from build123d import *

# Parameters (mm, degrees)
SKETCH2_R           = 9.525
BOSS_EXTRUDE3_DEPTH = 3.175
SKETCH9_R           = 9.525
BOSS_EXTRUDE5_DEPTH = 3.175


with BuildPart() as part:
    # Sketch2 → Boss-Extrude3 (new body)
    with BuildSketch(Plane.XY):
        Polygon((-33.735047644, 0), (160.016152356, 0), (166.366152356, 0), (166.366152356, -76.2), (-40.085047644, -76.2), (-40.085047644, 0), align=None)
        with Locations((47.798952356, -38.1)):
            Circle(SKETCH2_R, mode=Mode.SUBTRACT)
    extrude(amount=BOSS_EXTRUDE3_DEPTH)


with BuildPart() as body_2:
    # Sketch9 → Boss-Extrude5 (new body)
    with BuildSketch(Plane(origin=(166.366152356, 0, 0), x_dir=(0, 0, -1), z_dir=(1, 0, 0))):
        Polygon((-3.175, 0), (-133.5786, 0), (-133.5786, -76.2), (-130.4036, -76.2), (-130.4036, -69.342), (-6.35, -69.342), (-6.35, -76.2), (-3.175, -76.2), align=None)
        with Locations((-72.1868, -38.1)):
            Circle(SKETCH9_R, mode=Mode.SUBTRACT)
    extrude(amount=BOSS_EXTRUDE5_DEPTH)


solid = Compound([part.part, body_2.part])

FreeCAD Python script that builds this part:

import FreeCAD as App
import Part
import Sketcher
from FreeCAD import Vector
Q = App.Units.Quantity

doc = App.newDocument("Part")
params = doc.addObject("Spreadsheet::Sheet", "Params")
for row, (alias, value) in enumerate([
    ("sketch1_diameter", "0.75 in"),
    ("sketch1_height", "3 in"),
    ("sketch1_width", "8.128 in"),
    ("pad1_length", "0.125 in"),
    ("sketch2_diameter", "0.75 in"),
    ("sketch2_width", "3 in"),
    ("sketch2_width2", "0.27 in"),
    ("sketch2_height", "5.134 in"),
    ("sketch2_height2", "0.125 in"),
    ("pad2_length", "0.125 in"),
], start=1):
    params.set(f"A{row}", alias)
    params.set(f"B{row}", "=" + value)
    params.setAlias(f"B{row}", alias)

body = doc.addObject("PartDesign::Body", "Body")

# Sketch on XY plane
sketch1 = body.newObject("Sketcher::SketchObject", "Sketch")
sketch1.AttachmentSupport = (doc.getObject("XY_Plane"), [""])
sketch1.MapMode = "FlatFace"
sketch1.addGeometry([
    Part.LineSegment(Vector(166, 0, 0), Vector(-40, 0, 0)),  # 0
    Part.LineSegment(Vector(-40, 0, 0), Vector(-40, -76, 0)),  # 1
    Part.LineSegment(Vector(-40, -76, 0), Vector(166, -76, 0)),  # 2
    Part.LineSegment(Vector(166, -76, 0), Vector(166, 0, 0)),  # 3
    Part.Circle(Vector(48, -38, 0), Vector(0, 0, 1), 10),  # 4
], False)
sketch1.addConstraint([
    Sketcher.Constraint("Coincident", 0, 2, 1, 1),
    Sketcher.Constraint("Coincident", 1, 2, 2, 1),
    Sketcher.Constraint("Coincident", 2, 2, 3, 1),
    Sketcher.Constraint("Coincident", 3, 2, 0, 1),
    Sketcher.Constraint("Horizontal", 0),
    Sketcher.Constraint("Vertical", 1),
    Sketcher.Constraint("Horizontal", 2),
    Sketcher.Constraint("Vertical", 3),
    Sketcher.Constraint("PointOnObject", 0, 2, -1),
    Sketcher.Constraint("Diameter", 4, Q("0.75 in")),
    Sketcher.Constraint("DistanceY", 1, 2, 1, 1, Q("3 in")),
    Sketcher.Constraint("DistanceY", 4, 3, -1, 1, Q("1.5 in")),
    Sketcher.Constraint("DistanceX", 0, 2, 0, 1, Q("8.128 in")),
    Sketcher.Constraint("DistanceX", 0, 2, 4, 3, Q("3.46 in")),
    Sketcher.Constraint("DistanceX", -1, 1, 4, 3, 47.798952),
])
sketch1.setExpression("Constraints[9]", "Params.sketch1_diameter")
sketch1.setExpression("Constraints[10]", "Params.sketch1_height")
sketch1.setExpression("Constraints[12]", "Params.sketch1_width")
pad1 = body.newObject("PartDesign::Pad", "Pad")
pad1.Profile = sketch1
pad1.setExpression("Length", "Params.pad1_length")
body2 = doc.addObject("PartDesign::Body", "Body001")

# Sketch on YZ plane
sketch2 = body2.newObject("Sketcher::SketchObject", "Sketch001")
sketch2.AttachmentSupport = (doc.getObject("YZ_Plane001"), [""])
sketch2.MapMode = "FlatFace"
sketch2.AttachmentOffset = App.Placement(Vector(0, 0, 166.366152), App.Rotation())
sketch2.addGeometry([
    Part.LineSegment(Vector(0, 3.2, 0), Vector(0, 133.6, 0)),  # 0
    Part.LineSegment(Vector(0, 133.6, 0), Vector(-76.2, 133.6, 0)),  # 1
    Part.LineSegment(Vector(-76.2, 133.6, 0), Vector(-76.2, 130.4, 0)),  # 2
    Part.LineSegment(Vector(-76.2, 130.4, 0), Vector(-69.3, 130.4, 0)),  # 3
    Part.LineSegment(Vector(-69.3, 130.4, 0), Vector(-69.3, 6.3, 0)),  # 4
    Part.LineSegment(Vector(-69.3, 6.3, 0), Vector(-76.2, 6.3, 0)),  # 5
    Part.LineSegment(Vector(-76.2, 6.3, 0), Vector(-76.2, 3.2, 0)),  # 6
    Part.LineSegment(Vector(-76.2, 3.2, 0), Vector(0, 3.2, 0)),  # 7
    Part.Circle(Vector(-38.1, 72.2, 0), Vector(0, 0, 1), 9.5),  # 8
], False)
sketch2.addConstraint([
    Sketcher.Constraint("Coincident", 0, 2, 1, 1),
    Sketcher.Constraint("Coincident", 1, 2, 2, 1),
    Sketcher.Constraint("Coincident", 2, 2, 3, 1),
    Sketcher.Constraint("Coincident", 3, 2, 4, 1),
    Sketcher.Constraint("Coincident", 4, 2, 5, 1),
    Sketcher.Constraint("Coincident", 5, 2, 6, 1),
    Sketcher.Constraint("Coincident", 6, 2, 7, 1),
    Sketcher.Constraint("Coincident", 7, 2, 0, 1),
    Sketcher.Constraint("Vertical", 0),
    Sketcher.Constraint("Horizontal", 1),
    Sketcher.Constraint("Vertical", 2),
    Sketcher.Constraint("Horizontal", 3),
    Sketcher.Constraint("Vertical", 4),
    Sketcher.Constraint("Horizontal", 5),
    Sketcher.Constraint("Vertical", 6),
    Sketcher.Constraint("Horizontal", 7),
    Sketcher.Constraint("PointOnObject", 0, 2, -2),
    Sketcher.Constraint("Vertical", 2, 2, 5, 2),
    Sketcher.Constraint("Equal", 2, 6),
    Sketcher.Constraint("Diameter", 8, Q("0.75 in")),
    Sketcher.Constraint("DistanceX", 1, 2, 1, 1, Q("3 in")),
    Sketcher.Constraint("DistanceX", 3, 1, 3, 2, Q("0.27 in")),
    Sketcher.Constraint("DistanceX", 8, 3, -1, 1, Q("1.5 in")),
    Sketcher.Constraint("DistanceY", 0, 1, 0, 2, Q("5.134 in")),
    Sketcher.Constraint("DistanceY", 2, 2, 2, 1, Q("0.125 in")),
    Sketcher.Constraint("DistanceY", -1, 1, 4, 2, Q("0.25 in")),
    Sketcher.Constraint("DistanceY", -1, 1, 8, 3, Q("2.842 in")),
])
sketch2.setExpression("Constraints[19]", "Params.sketch2_diameter")
sketch2.setExpression("Constraints[20]", "Params.sketch2_width")
sketch2.setExpression("Constraints[21]", "Params.sketch2_width2")
sketch2.setExpression("Constraints[23]", "Params.sketch2_height")
sketch2.setExpression("Constraints[24]", "Params.sketch2_height2")
pad2 = body2.newObject("PartDesign::Pad", "Pad001")
pad2.Profile = sketch2
pad2.setExpression("Length", "Params.pad2_length")

doc.recompute()
